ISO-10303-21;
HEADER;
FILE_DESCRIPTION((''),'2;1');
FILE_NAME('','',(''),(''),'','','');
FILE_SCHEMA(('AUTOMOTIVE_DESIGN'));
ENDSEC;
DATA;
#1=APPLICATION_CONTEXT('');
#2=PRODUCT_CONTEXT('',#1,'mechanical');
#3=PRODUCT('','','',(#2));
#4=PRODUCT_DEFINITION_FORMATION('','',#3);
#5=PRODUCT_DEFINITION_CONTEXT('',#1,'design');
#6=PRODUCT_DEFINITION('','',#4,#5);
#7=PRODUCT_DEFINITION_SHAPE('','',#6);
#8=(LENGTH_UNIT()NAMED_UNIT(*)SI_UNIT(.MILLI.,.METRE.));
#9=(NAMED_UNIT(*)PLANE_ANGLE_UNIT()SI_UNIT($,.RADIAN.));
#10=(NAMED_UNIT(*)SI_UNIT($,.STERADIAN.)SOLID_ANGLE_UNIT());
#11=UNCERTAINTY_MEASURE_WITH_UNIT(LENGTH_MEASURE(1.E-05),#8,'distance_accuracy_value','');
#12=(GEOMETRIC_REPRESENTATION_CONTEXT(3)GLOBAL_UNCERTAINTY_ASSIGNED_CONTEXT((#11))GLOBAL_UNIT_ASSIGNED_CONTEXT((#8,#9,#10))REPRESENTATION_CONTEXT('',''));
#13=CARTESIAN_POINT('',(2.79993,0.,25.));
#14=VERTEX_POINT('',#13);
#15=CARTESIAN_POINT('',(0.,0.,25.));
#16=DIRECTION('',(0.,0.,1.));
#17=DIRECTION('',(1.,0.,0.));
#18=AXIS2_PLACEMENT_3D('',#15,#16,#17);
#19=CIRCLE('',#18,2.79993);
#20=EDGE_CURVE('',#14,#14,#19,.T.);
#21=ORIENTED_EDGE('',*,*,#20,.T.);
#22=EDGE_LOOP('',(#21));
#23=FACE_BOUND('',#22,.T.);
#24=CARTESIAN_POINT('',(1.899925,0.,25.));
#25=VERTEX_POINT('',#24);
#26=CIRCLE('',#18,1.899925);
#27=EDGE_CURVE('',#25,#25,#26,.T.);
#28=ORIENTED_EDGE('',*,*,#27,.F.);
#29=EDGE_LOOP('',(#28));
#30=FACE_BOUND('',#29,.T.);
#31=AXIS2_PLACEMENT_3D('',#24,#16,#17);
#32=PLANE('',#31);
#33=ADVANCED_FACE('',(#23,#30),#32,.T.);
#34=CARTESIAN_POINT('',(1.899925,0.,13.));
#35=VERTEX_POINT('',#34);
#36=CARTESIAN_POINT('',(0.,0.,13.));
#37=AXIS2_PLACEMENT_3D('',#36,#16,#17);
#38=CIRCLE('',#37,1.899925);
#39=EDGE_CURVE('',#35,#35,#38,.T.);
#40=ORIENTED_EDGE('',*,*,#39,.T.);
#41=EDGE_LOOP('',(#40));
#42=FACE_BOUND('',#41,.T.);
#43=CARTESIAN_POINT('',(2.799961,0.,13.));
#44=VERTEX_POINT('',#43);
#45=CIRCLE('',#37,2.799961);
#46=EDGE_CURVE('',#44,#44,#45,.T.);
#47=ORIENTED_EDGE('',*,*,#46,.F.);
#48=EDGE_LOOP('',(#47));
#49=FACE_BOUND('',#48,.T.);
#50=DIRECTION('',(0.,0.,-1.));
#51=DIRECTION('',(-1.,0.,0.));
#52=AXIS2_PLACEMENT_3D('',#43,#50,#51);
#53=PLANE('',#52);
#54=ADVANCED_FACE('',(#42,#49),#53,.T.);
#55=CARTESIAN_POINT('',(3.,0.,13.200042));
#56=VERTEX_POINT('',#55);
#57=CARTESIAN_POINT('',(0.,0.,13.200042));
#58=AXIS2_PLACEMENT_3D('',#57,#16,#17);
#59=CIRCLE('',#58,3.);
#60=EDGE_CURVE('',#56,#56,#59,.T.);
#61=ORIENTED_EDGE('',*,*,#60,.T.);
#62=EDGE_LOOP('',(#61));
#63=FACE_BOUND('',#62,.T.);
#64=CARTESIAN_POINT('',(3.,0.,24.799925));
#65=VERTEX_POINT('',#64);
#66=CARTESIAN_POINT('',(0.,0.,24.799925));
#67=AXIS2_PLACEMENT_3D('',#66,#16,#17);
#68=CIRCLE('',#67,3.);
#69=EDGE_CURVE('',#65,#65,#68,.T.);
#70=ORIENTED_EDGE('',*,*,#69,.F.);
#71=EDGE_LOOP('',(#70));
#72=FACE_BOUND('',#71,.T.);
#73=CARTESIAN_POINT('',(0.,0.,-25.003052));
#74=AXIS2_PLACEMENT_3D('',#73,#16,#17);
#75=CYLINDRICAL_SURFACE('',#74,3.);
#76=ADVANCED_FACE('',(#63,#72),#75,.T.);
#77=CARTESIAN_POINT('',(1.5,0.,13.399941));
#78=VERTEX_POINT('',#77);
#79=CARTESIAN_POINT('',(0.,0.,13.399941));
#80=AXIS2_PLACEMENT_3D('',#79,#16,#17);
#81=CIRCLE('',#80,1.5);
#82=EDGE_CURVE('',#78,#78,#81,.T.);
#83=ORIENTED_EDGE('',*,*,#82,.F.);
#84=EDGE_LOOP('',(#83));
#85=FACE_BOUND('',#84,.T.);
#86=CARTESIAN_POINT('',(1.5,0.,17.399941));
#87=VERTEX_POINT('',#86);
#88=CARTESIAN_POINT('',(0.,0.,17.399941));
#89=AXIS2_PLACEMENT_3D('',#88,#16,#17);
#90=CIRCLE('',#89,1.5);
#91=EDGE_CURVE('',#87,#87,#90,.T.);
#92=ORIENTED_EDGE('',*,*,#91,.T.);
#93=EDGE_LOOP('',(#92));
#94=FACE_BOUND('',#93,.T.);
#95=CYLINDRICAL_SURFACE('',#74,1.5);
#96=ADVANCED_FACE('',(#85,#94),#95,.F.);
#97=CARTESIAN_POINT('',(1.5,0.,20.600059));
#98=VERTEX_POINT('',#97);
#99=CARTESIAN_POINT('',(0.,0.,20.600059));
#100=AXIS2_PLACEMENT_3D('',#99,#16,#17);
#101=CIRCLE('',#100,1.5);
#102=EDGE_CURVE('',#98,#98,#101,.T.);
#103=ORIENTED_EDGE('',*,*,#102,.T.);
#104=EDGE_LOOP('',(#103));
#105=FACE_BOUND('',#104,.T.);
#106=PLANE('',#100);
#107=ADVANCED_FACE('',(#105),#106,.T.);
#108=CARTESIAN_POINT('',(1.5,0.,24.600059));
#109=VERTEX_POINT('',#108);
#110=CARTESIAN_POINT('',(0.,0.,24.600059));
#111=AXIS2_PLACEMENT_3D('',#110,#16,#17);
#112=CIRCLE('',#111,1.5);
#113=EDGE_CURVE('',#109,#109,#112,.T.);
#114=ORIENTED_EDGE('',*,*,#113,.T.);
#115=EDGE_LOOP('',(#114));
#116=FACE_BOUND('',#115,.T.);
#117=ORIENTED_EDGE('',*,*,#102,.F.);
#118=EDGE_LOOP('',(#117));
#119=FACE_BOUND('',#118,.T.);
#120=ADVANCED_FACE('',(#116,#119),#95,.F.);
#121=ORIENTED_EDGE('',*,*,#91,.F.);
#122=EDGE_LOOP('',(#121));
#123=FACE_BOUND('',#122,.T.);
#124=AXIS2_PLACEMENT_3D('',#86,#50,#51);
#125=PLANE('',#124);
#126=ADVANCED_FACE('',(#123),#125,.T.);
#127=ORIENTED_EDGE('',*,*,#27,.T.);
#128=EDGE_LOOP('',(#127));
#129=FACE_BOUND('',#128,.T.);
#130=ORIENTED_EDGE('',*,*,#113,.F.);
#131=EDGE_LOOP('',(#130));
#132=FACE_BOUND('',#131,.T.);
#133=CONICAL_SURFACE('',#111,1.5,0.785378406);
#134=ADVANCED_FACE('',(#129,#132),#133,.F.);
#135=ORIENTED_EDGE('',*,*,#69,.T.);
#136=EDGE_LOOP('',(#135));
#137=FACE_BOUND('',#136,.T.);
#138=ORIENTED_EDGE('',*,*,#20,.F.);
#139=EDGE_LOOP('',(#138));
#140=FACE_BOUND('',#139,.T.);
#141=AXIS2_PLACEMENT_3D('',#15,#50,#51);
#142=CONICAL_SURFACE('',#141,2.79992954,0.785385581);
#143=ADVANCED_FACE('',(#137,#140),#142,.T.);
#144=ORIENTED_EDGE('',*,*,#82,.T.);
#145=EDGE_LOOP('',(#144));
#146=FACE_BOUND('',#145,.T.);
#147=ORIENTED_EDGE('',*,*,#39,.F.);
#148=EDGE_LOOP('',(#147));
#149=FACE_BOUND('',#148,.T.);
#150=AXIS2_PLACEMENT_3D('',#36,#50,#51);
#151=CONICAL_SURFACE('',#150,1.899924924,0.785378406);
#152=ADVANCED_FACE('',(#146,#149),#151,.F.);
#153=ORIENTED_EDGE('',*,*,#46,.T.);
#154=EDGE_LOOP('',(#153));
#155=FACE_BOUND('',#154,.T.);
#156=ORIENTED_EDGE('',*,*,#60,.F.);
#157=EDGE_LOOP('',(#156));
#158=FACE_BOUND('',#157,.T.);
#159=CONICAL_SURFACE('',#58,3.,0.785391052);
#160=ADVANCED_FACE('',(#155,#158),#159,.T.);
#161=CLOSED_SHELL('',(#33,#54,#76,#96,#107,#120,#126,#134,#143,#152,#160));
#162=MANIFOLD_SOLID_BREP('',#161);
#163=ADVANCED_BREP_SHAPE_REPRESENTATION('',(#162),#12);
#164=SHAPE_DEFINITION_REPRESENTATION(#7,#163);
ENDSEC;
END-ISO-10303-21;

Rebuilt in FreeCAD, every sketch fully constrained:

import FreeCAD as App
import Part
import Sketcher

V = App.Vector
Q = App.Units.Quantity

doc = App.newDocument("Part")
body = doc.addObject("PartDesign::Body", "Body")

# Sketch on XZ plane
sketch1 = body.newObject("Sketcher::SketchObject", "Sketch")
sketch1.AttachmentSupport = (doc.getObject("XZ_Plane"), [""])
sketch1.MapMode = "FlatFace"
sketch1.addGeometry([
    Part.LineSegment(V(1.5, 17.4, 0), V(0, 17.4, 0)),  # 0
    Part.LineSegment(V(0, 17.4, 0), V(0, 20.6, 0)),  # 1
    Part.LineSegment(V(0, 20.6, 0), V(1.5, 20.6, 0)),  # 2
    Part.LineSegment(V(1.5, 20.6, 0), V(1.5, 24.6, 0)),  # 3
    Part.LineSegment(V(1.5, 24.6, 0), V(1.9, 25, 0)),  # 4
    Part.LineSegment(V(1.9, 25, 0), V(2.8, 25, 0)),  # 5
    Part.LineSegment(V(2.8, 25, 0), V(3, 24.8, 0)),  # 6
    Part.LineSegment(V(3, 24.8, 0), V(3, 13.2, 0)),  # 7
    Part.LineSegment(V(3, 13.2, 0), V(2.8, 13, 0)),  # 8
    Part.LineSegment(V(2.8, 13, 0), V(1.9, 13, 0)),  # 9
    Part.LineSegment(V(1.9, 13, 0), V(1.5, 13.4, 0)),  # 10
    Part.LineSegment(V(1.5, 13.4, 0), V(1.5, 17.4, 0)),  # 11
], False)
sketch1.addConstraint([
    Sketcher.Constraint("Coincident", 0, 2, 1, 1),
    Sketcher.Constraint("Coincident", 1, 2, 2, 1),
    Sketcher.Constraint("Coincident", 2, 2, 3, 1),
    Sketcher.Constraint("Coincident", 3, 2, 4, 1),
    Sketcher.Constraint("Coincident", 4, 2, 5, 1),
    Sketcher.Constraint("Coincident", 5, 2, 6, 1),
    Sketcher.Constraint("Coincident", 6, 2, 7, 1),
    Sketcher.Constraint("Coincident", 7, 2, 8, 1),
    Sketcher.Constraint("Coincident", 8, 2, 9, 1),
    Sketcher.Constraint("Coincident", 9, 2, 10, 1),
    Sketcher.Constraint("Coincident", 10, 2, 11, 1),
    Sketcher.Constraint("Coincident", 11, 2, 0, 1),
    Sketcher.Constraint("Horizontal", 0),
    Sketcher.Constraint("Vertical", 1),
    Sketcher.Constraint("Horizontal", 2),
    Sketcher.Constraint("Vertical", 3),
    Sketcher.Constraint("Horizontal", 5),
    Sketcher.Constraint("Vertical", 7),
    Sketcher.Constraint("Horizontal", 9),
    Sketcher.Constraint("Vertical", 11),
    Sketcher.Constraint("PointOnObject", 0, 2, -2),
    Sketcher.Constraint("Vertical", 4, 2, 9, 2),
    Sketcher.Constraint("Vertical", 3, 2, 10, 2),
    Sketcher.Constraint("Equal", 3, 11),
    Sketcher.Constraint("Equal", 4, 10),
    Sketcher.Constraint("DistanceY", 3, 1, 3, 2, Q("4 mm")),
    Sketcher.Constraint("DistanceX", 0, 2, 0, 1, Q("1.5 mm")),
    Sketcher.Constraint("DistanceY", -1, 1, 4, 2, Q("25 mm")),
    Sketcher.Constraint("DistanceX", -1, 1, 6, 2, Q("3 mm")),
    Sketcher.Constraint("DistanceY", -1, 1, 8, 2, Q("13 mm")),
    Sketcher.Constraint("Distance", 8, Q("0.2829 mm")),
    Sketcher.Constraint("DistanceY", 1, 1, 1, 2, Q("3.200119 mm")),
    Sketcher.Constraint("DistanceY", 7, 2, 0, 2, Q("4.199899 mm")),
    Sketcher.Constraint("Distance", 4, Q("0.56559 mm")),
    Sketcher.Constraint("DistanceX", 5, 1, 5, 2, Q("0.900005 mm")),
    Sketcher.Constraint("DistanceY", 7, 2, 7, 1, Q("11.599883 mm")),
])
revolution = body.newObject("PartDesign::Revolution", "Revolution")
revolution.Profile = sketch1
revolution.ReferenceAxis = (sketch1, ["V_Axis"])
revolution.Angle = 360

doc.recompute()
